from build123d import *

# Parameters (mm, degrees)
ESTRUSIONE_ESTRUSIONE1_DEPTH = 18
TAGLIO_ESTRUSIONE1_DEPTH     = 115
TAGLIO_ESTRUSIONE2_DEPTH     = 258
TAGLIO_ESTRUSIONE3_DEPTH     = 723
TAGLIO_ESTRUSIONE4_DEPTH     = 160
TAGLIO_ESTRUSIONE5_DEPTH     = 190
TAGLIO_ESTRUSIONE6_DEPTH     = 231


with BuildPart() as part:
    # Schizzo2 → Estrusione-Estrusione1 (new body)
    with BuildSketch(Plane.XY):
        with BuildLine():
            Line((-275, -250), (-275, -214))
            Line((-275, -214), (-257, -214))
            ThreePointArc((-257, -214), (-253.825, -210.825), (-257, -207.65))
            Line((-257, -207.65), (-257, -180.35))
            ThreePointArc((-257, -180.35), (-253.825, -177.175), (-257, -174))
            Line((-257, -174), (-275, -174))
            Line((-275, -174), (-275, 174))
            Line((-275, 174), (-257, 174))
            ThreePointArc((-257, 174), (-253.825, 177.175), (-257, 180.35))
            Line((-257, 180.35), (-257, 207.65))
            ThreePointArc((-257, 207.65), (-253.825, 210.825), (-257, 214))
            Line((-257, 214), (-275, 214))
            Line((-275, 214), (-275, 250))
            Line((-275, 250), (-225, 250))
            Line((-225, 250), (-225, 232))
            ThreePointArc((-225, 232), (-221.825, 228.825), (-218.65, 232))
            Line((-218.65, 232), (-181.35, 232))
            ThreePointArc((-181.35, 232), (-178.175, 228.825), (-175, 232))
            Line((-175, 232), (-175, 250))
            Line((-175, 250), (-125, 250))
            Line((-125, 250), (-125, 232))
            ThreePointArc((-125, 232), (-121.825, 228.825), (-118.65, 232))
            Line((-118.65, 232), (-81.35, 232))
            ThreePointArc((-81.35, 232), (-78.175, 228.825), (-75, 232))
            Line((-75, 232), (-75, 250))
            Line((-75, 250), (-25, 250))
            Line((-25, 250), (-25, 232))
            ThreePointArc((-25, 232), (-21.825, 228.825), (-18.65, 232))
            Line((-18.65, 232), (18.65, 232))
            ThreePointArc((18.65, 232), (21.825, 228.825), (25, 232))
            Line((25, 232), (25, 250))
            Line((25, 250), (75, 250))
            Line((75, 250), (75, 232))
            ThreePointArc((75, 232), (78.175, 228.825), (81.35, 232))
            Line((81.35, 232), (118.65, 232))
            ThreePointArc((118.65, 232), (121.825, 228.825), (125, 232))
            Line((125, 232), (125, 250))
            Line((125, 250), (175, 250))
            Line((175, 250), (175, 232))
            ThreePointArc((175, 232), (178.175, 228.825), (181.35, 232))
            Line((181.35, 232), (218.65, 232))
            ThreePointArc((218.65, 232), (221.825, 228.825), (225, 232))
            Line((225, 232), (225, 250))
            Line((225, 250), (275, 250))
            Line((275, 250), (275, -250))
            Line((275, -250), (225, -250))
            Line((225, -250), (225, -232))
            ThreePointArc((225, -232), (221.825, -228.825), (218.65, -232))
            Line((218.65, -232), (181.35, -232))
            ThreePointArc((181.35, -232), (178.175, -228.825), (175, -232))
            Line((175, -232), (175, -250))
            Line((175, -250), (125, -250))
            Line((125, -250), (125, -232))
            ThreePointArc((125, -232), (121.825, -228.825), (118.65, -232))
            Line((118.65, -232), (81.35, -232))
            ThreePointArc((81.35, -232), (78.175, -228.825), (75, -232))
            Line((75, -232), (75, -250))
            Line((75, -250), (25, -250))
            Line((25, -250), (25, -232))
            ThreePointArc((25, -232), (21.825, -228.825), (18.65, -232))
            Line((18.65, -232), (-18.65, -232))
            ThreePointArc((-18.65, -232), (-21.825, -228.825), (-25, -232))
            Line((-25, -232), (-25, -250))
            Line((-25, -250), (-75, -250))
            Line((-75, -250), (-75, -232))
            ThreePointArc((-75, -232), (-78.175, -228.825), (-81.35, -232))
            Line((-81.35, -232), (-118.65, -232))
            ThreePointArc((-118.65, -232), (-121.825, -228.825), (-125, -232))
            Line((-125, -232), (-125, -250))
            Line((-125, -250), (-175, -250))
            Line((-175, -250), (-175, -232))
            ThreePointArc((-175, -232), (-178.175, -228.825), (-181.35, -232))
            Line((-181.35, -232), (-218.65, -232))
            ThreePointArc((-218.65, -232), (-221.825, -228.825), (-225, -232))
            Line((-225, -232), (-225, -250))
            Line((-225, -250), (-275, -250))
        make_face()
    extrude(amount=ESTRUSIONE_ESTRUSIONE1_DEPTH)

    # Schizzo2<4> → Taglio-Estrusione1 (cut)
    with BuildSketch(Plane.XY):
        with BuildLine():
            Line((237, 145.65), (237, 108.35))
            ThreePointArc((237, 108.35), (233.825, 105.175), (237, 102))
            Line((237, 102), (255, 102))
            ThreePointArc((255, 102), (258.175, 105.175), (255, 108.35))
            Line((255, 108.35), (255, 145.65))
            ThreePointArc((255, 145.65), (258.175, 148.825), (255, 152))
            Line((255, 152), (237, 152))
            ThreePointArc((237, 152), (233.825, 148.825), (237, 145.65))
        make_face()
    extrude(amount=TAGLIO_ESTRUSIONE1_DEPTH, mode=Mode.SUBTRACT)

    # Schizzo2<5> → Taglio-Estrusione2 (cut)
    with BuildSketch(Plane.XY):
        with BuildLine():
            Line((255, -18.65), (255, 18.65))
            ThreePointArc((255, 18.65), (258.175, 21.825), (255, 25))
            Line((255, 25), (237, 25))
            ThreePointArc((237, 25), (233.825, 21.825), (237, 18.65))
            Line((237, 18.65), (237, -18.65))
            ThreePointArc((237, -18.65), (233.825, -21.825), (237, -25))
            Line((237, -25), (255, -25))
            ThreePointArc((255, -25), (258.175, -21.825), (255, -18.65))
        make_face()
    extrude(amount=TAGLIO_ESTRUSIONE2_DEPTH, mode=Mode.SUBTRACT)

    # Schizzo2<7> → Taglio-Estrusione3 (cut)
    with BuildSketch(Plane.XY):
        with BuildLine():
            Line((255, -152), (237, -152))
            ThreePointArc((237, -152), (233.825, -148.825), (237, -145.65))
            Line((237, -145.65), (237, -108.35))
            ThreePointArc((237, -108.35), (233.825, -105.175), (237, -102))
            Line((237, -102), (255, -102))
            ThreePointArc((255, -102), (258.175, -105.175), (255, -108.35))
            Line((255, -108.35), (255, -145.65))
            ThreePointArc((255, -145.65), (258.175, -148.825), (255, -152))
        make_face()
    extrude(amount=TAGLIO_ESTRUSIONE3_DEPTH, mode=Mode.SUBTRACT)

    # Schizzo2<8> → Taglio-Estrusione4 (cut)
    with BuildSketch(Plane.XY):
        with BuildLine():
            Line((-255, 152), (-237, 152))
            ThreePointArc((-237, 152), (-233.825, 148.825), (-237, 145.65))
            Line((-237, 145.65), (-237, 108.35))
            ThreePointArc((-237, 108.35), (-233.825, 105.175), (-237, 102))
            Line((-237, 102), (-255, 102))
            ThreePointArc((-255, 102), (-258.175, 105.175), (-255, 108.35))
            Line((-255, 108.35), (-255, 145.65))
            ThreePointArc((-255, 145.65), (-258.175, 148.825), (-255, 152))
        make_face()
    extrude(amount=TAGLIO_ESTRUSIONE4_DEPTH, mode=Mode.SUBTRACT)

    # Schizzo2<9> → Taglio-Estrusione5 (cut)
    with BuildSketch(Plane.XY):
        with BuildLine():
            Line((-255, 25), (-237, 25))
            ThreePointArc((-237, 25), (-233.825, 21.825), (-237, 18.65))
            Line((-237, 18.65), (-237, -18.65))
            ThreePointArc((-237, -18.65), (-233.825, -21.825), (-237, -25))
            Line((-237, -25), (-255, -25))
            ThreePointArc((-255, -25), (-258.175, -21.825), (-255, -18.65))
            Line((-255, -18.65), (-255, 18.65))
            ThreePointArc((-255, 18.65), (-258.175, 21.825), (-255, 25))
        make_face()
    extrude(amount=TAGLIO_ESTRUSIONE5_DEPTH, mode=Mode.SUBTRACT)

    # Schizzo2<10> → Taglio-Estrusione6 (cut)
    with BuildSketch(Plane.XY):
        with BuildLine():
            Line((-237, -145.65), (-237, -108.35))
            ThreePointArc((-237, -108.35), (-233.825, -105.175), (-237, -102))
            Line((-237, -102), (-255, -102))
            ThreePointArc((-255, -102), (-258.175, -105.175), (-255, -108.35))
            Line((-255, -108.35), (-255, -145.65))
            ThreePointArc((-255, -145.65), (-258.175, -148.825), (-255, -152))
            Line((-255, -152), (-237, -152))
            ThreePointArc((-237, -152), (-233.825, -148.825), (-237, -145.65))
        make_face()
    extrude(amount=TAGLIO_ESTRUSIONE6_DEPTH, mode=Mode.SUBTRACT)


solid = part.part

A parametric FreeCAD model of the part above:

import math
import FreeCAD as App
import Part
import Sketcher
from FreeCAD import Vector
Q = App.Units.Quantity

doc = App.newDocument("Part")
body = doc.addObject("PartDesign::Body", "Body")

sketch1 = body.newObject("Sketcher::SketchObject", "Sketch")
sketch1.AttachmentSupport = (doc.getObject("XY_Plane"), [""])
sketch1.MapMode = "FlatFace"
sketch1.addGeometry(Part.LineSegment(Vector(-275, -214, 0), Vector(-275, -250, 0)), False)
sketch1.addGeometry(Part.LineSegment(Vector(-275, -250, 0), Vector(-225, -250, 0)), False)
sketch1.addGeometry(Part.LineSegment(Vector(-225, -250, 0), Vector(-225, -232, 0)), False)
sketch1.addGeometry(Part.ArcOfCircle(Part.Circle(Vector(-221.825, -232, 0), Vector(0, 0, 1), 3.175), math.radians(0), math.radians(180)), False)
sketch1.addGeometry(Part.LineSegment(Vector(-218.65, -232, 0), Vector(-181.35, -232, 0)), False)
sketch1.addGeometry(Part.ArcOfCircle(Part.Circle(Vector(-178.175, -232, 0), Vector(0, 0, 1), 3.175), math.radians(0), math.radians(180)), False)
sketch1.addGeometry(Part.LineSegment(Vector(-175, -232, 0), Vector(-175, -250, 0)), False)
sketch1.addGeometry(Part.LineSegment(Vector(-175, -250, 0), Vector(-125, -250, 0)), False)
sketch1.addGeometry(Part.LineSegment(Vector(-125, -250, 0), Vector(-125, -232, 0)), False)
sketch1.addGeometry(Part.ArcOfCircle(Part.Circle(Vector(-121.825, -232, 0), Vector(0, 0, 1), 3.175), math.radians(0), math.radians(180)), False)
sketch1.addGeometry(Part.LineSegment(Vector(-118.65, -232, 0), Vector(-81.35, -232, 0)), False)
sketch1.addGeometry(Part.ArcOfCircle(Part.Circle(Vector(-78.175, -232, 0), Vector(0, 0, 1), 3.175), math.radians(0), math.radians(180)), False)
sketch1.addGeometry(Part.LineSegment(Vector(-75, -232, 0), Vector(-75, -250, 0)), False)
sketch1.addGeometry(Part.LineSegment(Vector(-75, -250, 0), Vector(-25, -250, 0)), False)
sketch1.addGeometry(Part.LineSegment(Vector(-25, -250, 0), Vector(-25, -232, 0)), False)
sketch1.addGeometry(Part.ArcOfCircle(Part.Circle(Vector(-21.825, -232, 0), Vector(0, 0, 1), 3.175), math.radians(0), math.radians(180)), False)
sketch1.addGeometry(Part.LineSegment(Vector(-18.65, -232, 0), Vector(18.65, -232, 0)), False)
sketch1.addGeometry(Part.ArcOfCircle(Part.Circle(Vector(21.825, -232, 0), Vector(0, 0, 1), 3.175), math.radians(0), math.radians(180)), False)
sketch1.addGeometry(Part.LineSegment(Vector(25, -232, 0), Vector(25, -250, 0)), False)
sketch1.addGeometry(Part.LineSegment(Vector(25, -250, 0), Vector(75, -250, 0)), False)
sketch1.addGeometry(Part.LineSegment(Vector(75, -250, 0), Vector(75, -232, 0)), False)
sketch1.addGeometry(Part.ArcOfCircle(Part.Circle(Vector(78.175, -232, 0), Vector(0, 0, 1), 3.175), math.radians(0), math.radians(180)), False)
sketch1.addGeometry(Part.LineSegment(Vector(81.35, -232, 0), Vector(118.65, -232, 0)), False)
sketch1.addGeometry(Part.ArcOfCircle(Part.Circle(Vector(121.825, -232, 0), Vector(0, 0, 1), 3.175), math.radians(0), math.radians(180)), False)
sketch1.addGeometry(Part.LineSegment(Vector(125, -232, 0), Vector(125, -250, 0)), False)
sketch1.addGeometry(Part.LineSegment(Vector(125, -250, 0), Vector(175, -250, 0)), False)
sketch1.addGeometry(Part.LineSegment(Vector(175, -250, 0), Vector(175, -232, 0)), False)
sketch1.addGeometry(Part.ArcOfCircle(Part.Circle(Vector(178.175, -232, 0), Vector(0, 0, 1), 3.175), math.radians(0), math.radians(180)), False)
sketch1.addGeometry(Part.LineSegment(Vector(181.35, -232, 0), Vector(218.65, -232, 0)), False)
sketch1.addGeometry(Part.ArcOfCircle(Part.Circle(Vector(221.825, -232, 0), Vector(0, 0, 1), 3.175), math.radians(0), math.radians(180)), False)
sketch1.addGeometry(Part.LineSegment(Vector(225, -232, 0), Vector(225, -250, 0)), False)
sketch1.addGeometry(Part.LineSegment(Vector(225, -250, 0), Vector(275, -250, 0)), False)
sketch1.addGeometry(Part.LineSegment(Vector(275, -250, 0), Vector(275, 250, 0)), False)
sketch1.addGeometry(Part.LineSegment(Vector(275, 250, 0), Vector(225, 250, 0)), False)
sketch1.addGeometry(Part.LineSegment(Vector(225, 250, 0), Vector(225, 232, 0)), False)
sketch1.addGeometry(Part.ArcOfCircle(Part.Circle(Vector(221.825, 232, 0), Vector(0, 0, 1), 3.175), math.radians(180), math.radians(360)), False)
sketch1.addGeometry(Part.LineSegment(Vector(218.65, 232, 0), Vector(181.35, 232, 0)), False)
sketch1.addGeometry(Part.ArcOfCircle(Part.Circle(Vector(178.175, 232, 0), Vector(0, 0, 1), 3.175), math.radians(180), math.radians(360)), False)
sketch1.addGeometry(Part.LineSegment(Vector(175, 232, 0), Vector(175, 250, 0)), False)
sketch1.addGeometry(Part.LineSegment(Vector(175, 250, 0), Vector(125, 250, 0)), False)
sketch1.addGeometry(Part.LineSegment(Vector(125, 250, 0), Vector(125, 232, 0)), False)
sketch1.addGeometry(Part.ArcOfCircle(Part.Circle(Vector(121.825, 232, 0), Vector(0, 0, 1), 3.175), math.radians(180), math.radians(360)), False)
sketch1.addGeometry(Part.LineSegment(Vector(118.65, 232, 0), Vector(81.35, 232, 0)), False)
sketch1.addGeometry(Part.ArcOfCircle(Part.Circle(Vector(78.175, 232, 0), Vector(0, 0, 1), 3.175), math.radians(180), math.radians(360)), False)
sketch1.addGeometry(Part.LineSegment(Vector(75, 232, 0), Vector(75, 250, 0)), False)
sketch1.addGeometry(Part.LineSegment(Vector(75, 250, 0), Vector(25, 250, 0)), False)
sketch1.addGeometry(Part.LineSegment(Vector(25, 250, 0), Vector(25, 232, 0)), False)
sketch1.addGeometry(Part.ArcOfCircle(Part.Circle(Vector(21.825, 232, 0), Vector(0, 0, 1), 3.175), math.radians(180), math.radians(360)), False)
sketch1.addGeometry(Part.LineSegment(Vector(18.65, 232, 0), Vector(-18.65, 232, 0)), False)
sketch1.addGeometry(Part.ArcOfCircle(Part.Circle(Vector(-21.825, 232, 0), Vector(0, 0, 1), 3.175), math.radians(180), math.radians(360)), False)
sketch1.addGeometry(Part.LineSegment(Vector(-25, 232, 0), Vector(-25, 250, 0)), False)
sketch1.addGeometry(Part.LineSegment(Vector(-25, 250, 0), Vector(-75, 250, 0)), False)
sketch1.addGeometry(Part.LineSegment(Vector(-75, 250, 0), Vector(-75, 232, 0)), False)
sketch1.addGeometry(Part.ArcOfCircle(Part.Circle(Vector(-78.175, 232, 0), Vector(0, 0, 1), 3.175), math.radians(180), math.radians(360)), False)
sketch1.addGeometry(Part.LineSegment(Vector(-81.35, 232, 0), Vector(-118.65, 232, 0)), False)
sketch1.addGeometry(Part.ArcOfCircle(Part.Circle(Vector(-121.825, 232, 0), Vector(0, 0, 1), 3.175), math.radians(180), math.radians(360)), False)
sketch1.addGeometry(Part.LineSegment(Vector(-125, 232, 0), Vector(-125, 250, 0)), False)
sketch1.addGeometry(Part.LineSegment(Vector(-125, 250, 0), Vector(-175, 250, 0)), False)
sketch1.addGeometry(Part.LineSegment(Vector(-175, 250, 0), Vector(-175, 232, 0)), False)
sketch1.addGeometry(Part.ArcOfCircle(Part.Circle(Vector(-178.175, 232, 0), Vector(0, 0, 1), 3.175), math.radians(180), math.radians(360)), False)
sketch1.addGeometry(Part.LineSegment(Vector(-181.35, 232, 0), Vector(-218.65, 232, 0)), False)
sketch1.addGeometry(Part.ArcOfCircle(Part.Circle(Vector(-221.825, 232, 0), Vector(0, 0, 1), 3.175), math.radians(180), math.radians(360)), False)
sketch1.addGeometry(Part.LineSegment(Vector(-225, 232, 0), Vector(-225, 250, 0)), False)
sketch1.addGeometry(Part.LineSegment(Vector(-225, 250, 0), Vector(-275, 250, 0)), False)
sketch1.addGeometry(Part.LineSegment(Vector(-275, 250, 0), Vector(-275, 214, 0)), False)
sketch1.addGeometry(Part.LineSegment(Vector(-275, 214, 0), Vector(-257, 214, 0)), False)
sketch1.addGeometry(Part.ArcOfCircle(Part.Circle(Vector(-257, 210.825, 0), Vector(0, 0, 1), 3.175), math.radians(-90), math.radians(90)), False)
sketch1.addGeometry(Part.LineSegment(Vector(-257, 207.65, 0), Vector(-257, 180.35, 0)), False)
sketch1.addGeometry(Part.ArcOfCircle(Part.Circle(Vector(-257, 177.175, 0), Vector(0, 0, 1), 3.175), math.radians(-90), math.radians(90)), False)
sketch1.addGeometry(Part.LineSegment(Vector(-257, 174, 0), Vector(-275, 174, 0)), False)
sketch1.addGeometry(Part.LineSegment(Vector(-275, 174, 0), Vector(-275, -174, 0)), False)
sketch1.addGeometry(Part.LineSegment(Vector(-275, -174, 0), Vector(-257, -174, 0)), False)
sketch1.addGeometry(Part.ArcOfCircle(Part.Circle(Vector(-257, -177.175, 0), Vector(0, 0, 1), 3.175), math.radians(-90), math.radians(90)), False)
sketch1.addGeometry(Part.LineSegment(Vector(-257, -180.35, 0), Vector(-257, -207.65, 0)), False)
sketch1.addGeometry(Part.ArcOfCircle(Part.Circle(Vector(-257, -210.825, 0), Vector(0, 0, 1), 3.175), math.radians(-90), math.radians(90)), False)
sketch1.addGeometry(Part.LineSegment(Vector(-257, -214, 0), Vector(-275, -214, 0)), False)
sketch1.addConstraint(Sketcher.Constraint("Coincident", 0, 2, 1, 1))
sketch1.addConstraint(Sketcher.Constraint("Coincident", 1, 2, 2, 1))
sketch1.addConstraint(Sketcher.Constraint("Tangent", 2, 2, 3, 2))
sketch1.addConstraint(Sketcher.Constraint("Coincident", 3, 1, 4, 1))
sketch1.addConstraint(Sketcher.Constraint("Coincident", 4, 2, 5, 2))
sketch1.addConstraint(Sketcher.Constraint("Tangent", 5, 1, 6, 1))
sketch1.addConstraint(Sketcher.Constraint("Coincident", 6, 2, 7, 1))
sketch1.addConstraint(Sketcher.Constraint("Coincident", 7, 2, 8, 1))
sketch1.addConstraint(Sketcher.Constraint("Tangent", 8, 2, 9, 2))
sketch1.addConstraint(Sketcher.Constraint("Coincident", 9, 1, 10, 1))
sketch1.addConstraint(Sketcher.Constraint("Coincident", 10, 2, 11, 2))
sketch1.addConstraint(Sketcher.Constraint("Tangent", 11, 1, 12, 1))
sketch1.addConstraint(Sketcher.Constraint("Coincident", 12, 2, 13, 1))
sketch1.addConstraint(Sketcher.Constraint("Coincident", 13, 2, 14, 1))
sketch1.addConstraint(Sketcher.Constraint("Tangent", 14, 2, 15, 2))
sketch1.addConstraint(Sketcher.Constraint("Coincident", 15, 1, 16, 1))
sketch1.addConstraint(Sketcher.Constraint("Coincident", 16, 2, 17, 2))
sketch1.addConstraint(Sketcher.Constraint("Tangent", 17, 1, 18, 1))
sketch1.addConstraint(Sketcher.Constraint("Coincident", 18, 2, 19, 1))
sketch1.addConstraint(Sketcher.Constraint("Coincident", 19, 2, 20, 1))
sketch1.addConstraint(Sketcher.Constraint("Tangent", 20, 2, 21, 2))
sketch1.addConstraint(Sketcher.Constraint("Coincident", 21, 1, 22, 1))
sketch1.addConstraint(Sketcher.Constraint("Coincident", 22, 2, 23, 2))
sketch1.addConstraint(Sketcher.Constraint("Tangent", 23, 1, 24, 1))
sketch1.addConstraint(Sketcher.Constraint("Coincident", 24, 2, 25, 1))
sketch1.addConstraint(Sketcher.Constraint("Coincident", 25, 2, 26, 1))
sketch1.addConstraint(Sketcher.Constraint("Tangent", 26, 2, 27, 2))
sketch1.addConstraint(Sketcher.Constraint("Coincident", 27, 1, 28, 1))
sketch1.addConstraint(Sketcher.Constraint("Coincident", 28, 2, 29, 2))
sketch1.addConstraint(Sketcher.Constraint("Tangent", 29, 1, 30, 1))
sketch1.addConstraint(Sketcher.Constraint("Coincident", 30, 2, 31, 1))
sketch1.addConstraint(Sketcher.Constraint("Coincident", 31, 2, 32, 1))
sketch1.addConstraint(Sketcher.Constraint("Coincident", 32, 2, 33, 1))
sketch1.addConstraint(Sketcher.Constraint("Coincident", 33, 2, 34, 1))
sketch1.addConstraint(Sketcher.Constraint("Tangent", 34, 2, 35, 2))
sketch1.addConstraint(Sketcher.Constraint("Coincident", 35, 1, 36, 1))
sketch1.addConstraint(Sketcher.Constraint("Coincident", 36, 2, 37, 2))
sketch1.addConstraint(Sketcher.Constraint("Tangent", 37, 1, 38, 1))
sketch1.addConstraint(Sketcher.Constraint("Coincident", 38, 2, 39, 1))
sketch1.addConstraint(Sketcher.Constraint("Coincident", 39, 2, 40, 1))
sketch1.addConstraint(Sketcher.Constraint("Tangent", 40, 2, 41, 2))
sketch1.addConstraint(Sketcher.Constraint("Coincident", 41, 1, 42, 1))
sketch1.addConstraint(Sketcher.Constraint("Coincident", 42, 2, 43, 2))
sketch1.addConstraint(Sketcher.Constraint("Tangent", 43, 1, 44, 1))
sketch1.addConstraint(Sketcher.Constraint("Coincident", 44, 2, 45, 1))
sketch1.addConstraint(Sketcher.Constraint("Coincident", 45, 2, 46, 1))
sketch1.addConstraint(Sketcher.Constraint("Tangent", 46, 2, 47, 2))
sketch1.addConstraint(Sketcher.Constraint("Coincident", 47, 1, 48, 1))
sketch1.addConstraint(Sketcher.Constraint("Coincident", 48, 2, 49, 2))
sketch1.addConstraint(Sketcher.Constraint("Tangent", 49, 1, 50, 1))
sketch1.addConstraint(Sketcher.Constraint("Coincident", 50, 2, 51, 1))
sketch1.addConstraint(Sketcher.Constraint("Coincident", 51, 2, 52, 1))
sketch1.addConstraint(Sketcher.Constraint("Tangent", 52, 2, 53, 2))
sketch1.addConstraint(Sketcher.Constraint("Coincident", 53, 1, 54, 1))
sketch1.addConstraint(Sketcher.Constraint("Coincident", 54, 2, 55, 2))
sketch1.addConstraint(Sketcher.Constraint("Tangent", 55, 1, 56, 1))
sketch1.addConstraint(Sketcher.Constraint("Coincident", 56, 2, 57, 1))
sketch1.addConstraint(Sketcher.Constraint("Coincident", 57, 2, 58, 1))
sketch1.addConstraint(Sketcher.Constraint("Tangent", 58, 2, 59, 2))
sketch1.addConstraint(Sketcher.Constraint("Coincident", 59, 1, 60, 1))
sketch1.addConstraint(Sketcher.Constraint("Coincident", 60, 2, 61, 2))
sketch1.addConstraint(Sketcher.Constraint("Tangent", 61, 1, 62, 1))
sketch1.addConstraint(Sketcher.Constraint("Coincident", 62, 2, 63, 1))
sketch1.addConstraint(Sketcher.Constraint("Coincident", 63, 2, 64, 1))
sketch1.addConstraint(Sketcher.Constraint("Coincident", 64, 2, 65, 1))
sketch1.addConstraint(Sketcher.Constraint("Tangent", 65, 2, 66, 2))
sketch1.addConstraint(Sketcher.Constraint("Coincident", 66, 1, 67, 1))
sketch1.addConstraint(Sketcher.Constraint("Coincident", 67, 2, 68, 2))
sketch1.addConstraint(Sketcher.Constraint("Tangent", 68, 1, 69, 1))
sketch1.addConstraint(Sketcher.Constraint("Coincident", 69, 2, 70, 1))
sketch1.addConstraint(Sketcher.Constraint("Coincident", 70, 2, 71, 1))
sketch1.addConstraint(Sketcher.Constraint("Tangent", 71, 2, 72, 2))
sketch1.addConstraint(Sketcher.Constraint("Coincident", 72, 1, 73, 1))
sketch1.addConstraint(Sketcher.Constraint("Coincident", 73, 2, 74, 2))
sketch1.addConstraint(Sketcher.Constraint("Tangent", 74, 1, 75, 1))
sketch1.addConstraint(Sketcher.Constraint("Coincident", 75, 2, 0, 1))
sketch1.addConstraint(Sketcher.Constraint("Vertical", 0))
sketch1.addConstraint(Sketcher.Constraint("Horizontal", 1))
sketch1.addConstraint(Sketcher.Constraint("Vertical", 2))
sketch1.addConstraint(Sketcher.Constraint("Horizontal", 4))
sketch1.addConstraint(Sketcher.Constraint("Vertical", 6))
sketch1.addConstraint(Sketcher.Constraint("Horizontal", 7))
sketch1.addConstraint(Sketcher.Constraint("Vertical", 8))
sketch1.addConstraint(Sketcher.Constraint("Horizontal", 10))
sketch1.addConstraint(Sketcher.Constraint("Vertical", 12))
sketch1.addConstraint(Sketcher.Constraint("Horizontal", 13))
sketch1.addConstraint(Sketcher.Constraint("Vertical", 14))
sketch1.addConstraint(Sketcher.Constraint("Horizontal", 16))
sketch1.addConstraint(Sketcher.Constraint("Vertical", 18))
sketch1.addConstraint(Sketcher.Constraint("Horizontal", 19))
sketch1.addConstraint(Sketcher.Constraint("Vertical", 20))
sketch1.addConstraint(Sketcher.Constraint("Horizontal", 22))
sketch1.addConstraint(Sketcher.Constraint("Vertical", 24))
sketch1.addConstraint(Sketcher.Constraint("Horizontal", 25))
sketch1.addConstraint(Sketcher.Constraint("Vertical", 26))
sketch1.addConstraint(Sketcher.Constraint("Horizontal", 28))
sketch1.addConstraint(Sketcher.Constraint("Vertical", 30))
sketch1.addConstraint(Sketcher.Constraint("Horizontal", 31))
sketch1.addConstraint(Sketcher.Constraint("Vertical", 32))
sketch1.addConstraint(Sketcher.Constraint("Horizontal", 33))
sketch1.addConstraint(Sketcher.Constraint("Vertical", 34))
sketch1.addConstraint(Sketcher.Constraint("Horizontal", 36))
sketch1.addConstraint(Sketcher.Constraint("Vertical", 38))
sketch1.addConstraint(Sketcher.Constraint("Horizontal", 39))
sketch1.addConstraint(Sketcher.Constraint("Vertical", 40))
sketch1.addConstraint(Sketcher.Constraint("Horizontal", 42))
sketch1.addConstraint(Sketcher.Constraint("Vertical", 44))
sketch1.addConstraint(Sketcher.Constraint("Horizontal", 45))
sketch1.addConstraint(Sketcher.Constraint("Vertical", 46))
sketch1.addConstraint(Sketcher.Constraint("Horizontal", 48))
sketch1.addConstraint(Sketcher.Constraint("Vertical", 50))
sketch1.addConstraint(Sketcher.Constraint("Horizontal", 51))
sketch1.addConstraint(Sketcher.Constraint("Vertical", 52))
sketch1.addConstraint(Sketcher.Constraint("Horizontal", 54))
sketch1.addConstraint(Sketcher.Constraint("Vertical", 56))
sketch1.addConstraint(Sketcher.Constraint("Horizontal", 57))
sketch1.addConstraint(Sketcher.Constraint("Vertical", 58))
sketch1.addConstraint(Sketcher.Constraint("Horizontal", 60))
sketch1.addConstraint(Sketcher.Constraint("Vertical", 62))
sketch1.addConstraint(Sketcher.Constraint("Horizontal", 63))
sketch1.addConstraint(Sketcher.Constraint("Vertical", 64))
sketch1.addConstraint(Sketcher.Constraint("Horizontal", 65))
sketch1.addConstraint(Sketcher.Constraint("Vertical", 67))
sketch1.addConstraint(Sketcher.Constraint("Horizontal", 69))
sketch1.addConstraint(Sketcher.Constraint("Vertical", 70))
sketch1.addConstraint(Sketcher.Constraint("Horizontal", 71))
sketch1.addConstraint(Sketcher.Constraint("Vertical", 73))
sketch1.addConstraint(Sketcher.Constraint("Horizontal", 75))
sketch1.addConstraint(Sketcher.Constraint("Equal", 3, 5))
sketch1.addConstraint(Sketcher.Constraint("Equal", 5, 9))
sketch1.addConstraint(Sketcher.Constraint("Equal", 9, 11))
sketch1.addConstraint(Sketcher.Constraint("Equal", 11, 15))
sketch1.addConstraint(Sketcher.Constraint("Equal", 15, 17))
sketch1.addConstraint(Sketcher.Constraint("Equal", 17, 21))
sketch1.addConstraint(Sketcher.Constraint("Equal", 21, 23))
sketch1.addConstraint(Sketcher.Constraint("Equal", 23, 27))
sketch1.addConstraint(Sketcher.Constraint("Equal", 27, 29))
sketch1.addConstraint(Sketcher.Constraint("Equal", 29, 35))
sketch1.addConstraint(Sketcher.Constraint("Equal", 35, 37))
sketch1.addConstraint(Sketcher.Constraint("Equal", 37, 41))
sketch1.addConstraint(Sketcher.Constraint("Equal", 41, 43))
sketch1.addConstraint(Sketcher.Constraint("Equal", 43, 47))
sketch1.addConstraint(Sketcher.Constraint("Equal", 47, 49))
sketch1.addConstraint(Sketcher.Constraint("Equal", 49, 53))
sketch1.addConstraint(Sketcher.Constraint("Equal", 53, 55))
sketch1.addConstraint(Sketcher.Constraint("Equal", 55, 59))
sketch1.addConstraint(Sketcher.Constraint("Equal", 59, 61))
sketch1.addConstraint(Sketcher.Constraint("Equal", 61, 66))
sketch1.addConstraint(Sketcher.Constraint("Equal", 66, 68))
sketch1.addConstraint(Sketcher.Constraint("Equal", 68, 72))
sketch1.addConstraint(Sketcher.Constraint("Equal", 72, 74))
sketch1.addConstraint(Sketcher.Constraint("Symmetric", 3, 3, 35, 3, -1, 1))
sketch1.addConstraint(Sketcher.Constraint("Symmetric", 5, 3, 37, 3, -1, 1))
sketch1.addConstraint(Sketcher.Constraint("Symmetric", 9, 3, 41, 3, -1, 1))
sketch1.addConstraint(Sketcher.Constraint("Symmetric", 11, 3, 43, 3, -1, 1))
sketch1.addConstraint(Sketcher.Constraint("Symmetric", 15, 3, 47, 3, -1, 1))
sketch1.addConstraint(Sketcher.Constraint("Symmetric", 17, 3, 49, 3, -1, 1))
sketch1.addConstraint(Sketcher.Constraint("Symmetric", 21, 3, 53, 3, -1, 1))
sketch1.addConstraint(Sketcher.Constraint("Symmetric", 23, 3, 55, 3, -1, 1))
sketch1.addConstraint(Sketcher.Constraint("Symmetric", 27, 3, 59, 3, -1, 1))
sketch1.addConstraint(Sketcher.Constraint("Symmetric", 29, 3, 61, 3, -1, 1))
sketch1.addConstraint(Sketcher.Constraint("Symmetric", 0, 2, 32, 2, -1, 1))
sketch1.addConstraint(Sketcher.Constraint("Symmetric", 31, 2, 63, 2, -1, 1))
sketch1.addConstraint(Sketcher.Constraint("Symmetric", 15, 3, 17, 3, -2))
sketch1.addConstraint(Sketcher.Constraint("Symmetric", 11, 3, 21, 3, -2))
sketch1.addConstraint(Sketcher.Constraint("Symmetric", 9, 3, 23, 3, -2))
sketch1.addConstraint(Sketcher.Constraint("Symmetric", 5, 3, 27, 3, -2))
sketch1.addConstraint(Sketcher.Constraint("Symmetric", 3, 3, 29, 3, -2))
sketch1.addConstraint(Sketcher.Constraint("Symmetric", 68, 3, 72, 3, -1))
sketch1.addConstraint(Sketcher.Constraint("Symmetric", 66, 3, 74, 3, -1))
sketch1.addConstraint(Sketcher.Constraint("Horizontal", 3, 3, 5, 3))
sketch1.addConstraint(Sketcher.Constraint("Horizontal", 5, 3, 9, 3))
sketch1.addConstraint(Sketcher.Constraint("Horizontal", 9, 3, 11, 3))
sketch1.addConstraint(Sketcher.Constraint("Horizontal", 11, 3, 15, 3))
sketch1.addConstraint(Sketcher.Constraint("Horizontal", 2, 2, 3, 1))
sketch1.addConstraint(Sketcher.Constraint("Horizontal", 1, 2, 6, 2))
sketch1.addConstraint(Sketcher.Constraint("Horizontal", 8, 2, 9, 1))
sketch1.addConstraint(Sketcher.Constraint("Horizontal", 7, 2, 12, 2))
sketch1.addConstraint(Sketcher.Constraint("Horizontal", 14, 2, 15, 1))
sketch1.addConstraint(Sketcher.Constraint("Horizontal", 13, 2, 18, 2))
sketch1.addConstraint(Sketcher.Constraint("Horizontal", 20, 2, 21, 1))
sketch1.addConstraint(Sketcher.Constraint("Horizontal", 19, 2, 24, 2))
sketch1.addConstraint(Sketcher.Constraint("Horizontal", 26, 2, 27, 1))
sketch1.addConstraint(Sketcher.Constraint("Horizontal", 25, 2, 30, 2))
sketch1.addConstraint(Sketcher.Constraint("Horizontal", 34, 2, 35, 1))
sketch1.addConstraint(Sketcher.Constraint("Horizontal", 33, 2, 38, 2))
sketch1.addConstraint(Sketcher.Constraint("Horizontal", 40, 2, 41, 1))
sketch1.addConstraint(Sketcher.Constraint("Horizontal", 39, 2, 44, 2))
sketch1.addConstraint(Sketcher.Constraint("Horizontal", 46, 2, 47, 1))
sketch1.addConstraint(Sketcher.Constraint("Horizontal", 45, 2, 50, 2))
sketch1.addConstraint(Sketcher.Constraint("Horizontal", 52, 2, 53, 1))
sketch1.addConstraint(Sketcher.Constraint("Horizontal", 51, 2, 56, 2))
sketch1.addConstraint(Sketcher.Constraint("Horizontal", 58, 2, 59, 1))
sketch1.addConstraint(Sketcher.Constraint("Vertical", 66, 3, 68, 3))
sketch1.addConstraint(Sketcher.Constraint("Vertical", 65, 2, 66, 1))
sketch1.addConstraint(Sketcher.Constraint("Vertical", 64, 2, 69, 2))
sketch1.addConstraint(Sketcher.Constraint("Vertical", 71, 2, 72, 1))
sketch1.addConstraint(Sketcher.Constraint("Equal", 1, 7))
sketch1.addConstraint(Sketcher.Constraint("Equal", 4, 10))
sketch1.addConstraint(Sketcher.Constraint("Equal", 7, 13))
sketch1.addConstraint(Sketcher.Constraint("Equal", 10, 16))
sketch1.addConstraint(Sketcher.Constraint("Equal", 75, 2))
sketch1.addConstraint(Sketcher.Constraint("DistanceX", 1, 1, 1, 2, Q("50 mm")))
sketch1.addConstraint(Sketcher.Constraint("DistanceX", 65, 1, 65, 2, Q("18 mm")))
sketch1.addConstraint(Sketcher.Constraint("DistanceY", 0, 2, 0, 1, Q("36 mm")))
sketch1.addConstraint(Sketcher.Constraint("DistanceY", 32, 1, 32, 2, Q("500 mm")))
sketch1.addConstraint(Sketcher.Constraint("DistanceY", 70, 2, 70, 1, Q("348 mm")))
sketch1.addConstraint(Sketcher.Constraint("DistanceX", 4, 1, 4, 2, Q("37.3 mm")))
sketch1.addConstraint(Sketcher.Constraint("DistanceY", 67, 2, 67, 1, Q("27.3 mm")))
pad1 = body.newObject("PartDesign::Pad", "Pad")
pad1.Profile = sketch1
pad1.Length = 18

sketch2 = body.newObject("Sketcher::SketchObject", "Sketch001")
sketch2.AttachmentSupport = (doc.getObject("XY_Plane"), [""])
sketch2.MapMode = "FlatFace"
sketch2.addGeometry(Part.LineSegment(Vector(237, 145.65, 0), Vector(237, 108.35, 0)), False)
sketch2.addGeometry(Part.ArcOfCircle(Part.Circle(Vector(237, 105.175, 0), Vector(0, 0, 1), 3.175), math.radians(90), math.radians(270)), False)
sketch2.addGeometry(Part.LineSegment(Vector(237, 102, 0), Vector(255, 102, 0)), False)
sketch2.addGeometry(Part.ArcOfCircle(Part.Circle(Vector(255, 105.175, 0), Vector(0, 0, 1), 3.175), math.radians(-90), math.radians(90)), False)
sketch2.addGeometry(Part.LineSegment(Vector(255, 108.35, 0), Vector(255, 145.65, 0)), False)
sketch2.addGeometry(Part.ArcOfCircle(Part.Circle(Vector(255, 148.825, 0), Vector(0, 0, 1), 3.175), math.radians(-90), math.radians(90)), False)
sketch2.addGeometry(Part.LineSegment(Vector(255, 152, 0), Vector(237, 152, 0)), False)
sketch2.addGeometry(Part.ArcOfCircle(Part.Circle(Vector(237, 148.825, 0), Vector(0, 0, 1), 3.175), math.radians(90), math.radians(270)), False)
sketch2.addConstraint(Sketcher.Constraint("Coincident", 0, 2, 1, 1))
sketch2.addConstraint(Sketcher.Constraint("Tangent", 1, 2, 2, 1))
sketch2.addConstraint(Sketcher.Constraint("Tangent", 2, 2, 3, 1))
sketch2.addConstraint(Sketcher.Constraint("Coincident", 3, 2, 4, 1))
sketch2.addConstraint(Sketcher.Constraint("Coincident", 4, 2, 5, 1))
sketch2.addConstraint(Sketcher.Constraint("Tangent", 5, 2, 6, 1))
sketch2.addConstraint(Sketcher.Constraint("Tangent", 6, 2, 7, 1))
sketch2.addConstraint(Sketcher.Constraint("Coincident", 7, 2, 0, 1))
sketch2.addConstraint(Sketcher.Constraint("Vertical", 0))
sketch2.addConstraint(Sketcher.Constraint("Horizontal", 2))
sketch2.addConstraint(Sketcher.Constraint("Vertical", 4))
sketch2.addConstraint(Sketcher.Constraint("Horizontal", 6))
sketch2.addConstraint(Sketcher.Constraint("Equal", 1, 3))
sketch2.addConstraint(Sketcher.Constraint("Equal", 3, 5))
sketch2.addConstraint(Sketcher.Constraint("Equal", 5, 7))
sketch2.addConstraint(Sketcher.Constraint("Vertical", 3, 3, 5, 3))
sketch2.addConstraint(Sketcher.Constraint("Vertical", 1, 3, 7, 3))
sketch2.addConstraint(Sketcher.Constraint("Vertical", 7, 3, 0, 2))
sketch2.addConstraint(Sketcher.Constraint("Vertical", 2, 2, 3, 2))
sketch2.addConstraint(Sketcher.Constraint("DistanceX", 2, 1, 2, 2, Q("18 mm")))
sketch2.addConstraint(Sketcher.Constraint("DistanceY", 0, 2, 0, 1, Q("37.3 mm")))
sketch2.addConstraint(Sketcher.Constraint("DistanceX", -1, 1, 1, 3, Q("237 mm")))
sketch2.addConstraint(Sketcher.Constraint("DistanceY", -1, 1, 1, 2, Q("102 mm")))
sketch2.addConstraint(Sketcher.Constraint("DistanceY", -1, 1, 5, 2, Q("152 mm")))
pocket1 = body.newObject("PartDesign::Pocket", "Pocket")
pocket1.Profile = sketch2
pocket1.Length = 115
pocket1.Reversed = True

sketch3 = body.newObject("Sketcher::SketchObject", "Sketch002")
sketch3.AttachmentSupport = (doc.getObject("XY_Plane"), [""])
sketch3.MapMode = "FlatFace"
sketch3.addGeometry(Part.LineSegment(Vector(255, -18.65, 0), Vector(255, 18.65, 0)), False)
sketch3.addGeometry(Part.ArcOfCircle(Part.Circle(Vector(255, 21.825, 0), Vector(0, 0, 1), 3.175), math.radians(-90), math.radians(90)), False)
sketch3.addGeometry(Part.LineSegment(Vector(255, 25, 0), Vector(237, 25, 0)), False)
sketch3.addGeometry(Part.ArcOfCircle(Part.Circle(Vector(237, 21.825, 0), Vector(0, 0, 1), 3.175), math.radians(90), math.radians(270)), False)
sketch3.addGeometry(Part.LineSegment(Vector(237, 18.65, 0), Vector(237, -18.65, 0)), False)
sketch3.addGeometry(Part.ArcOfCircle(Part.Circle(Vector(237, -21.825, 0), Vector(0, 0, 1), 3.175), math.radians(90), math.radians(270)), False)
sketch3.addGeometry(Part.LineSegment(Vector(237, -25, 0), Vector(255, -25, 0)), False)
sketch3.addGeometry(Part.ArcOfCircle(Part.Circle(Vector(255, -21.825, 0), Vector(0, 0, 1), 3.175), math.radians(-90), math.radians(90)), False)
sketch3.addConstraint(Sketcher.Constraint("Coincident", 0, 2, 1, 1))
sketch3.addConstraint(Sketcher.Constraint("Tangent", 1, 2, 2, 1))
sketch3.addConstraint(Sketcher.Constraint("Tangent", 2, 2, 3, 1))
sketch3.addConstraint(Sketcher.Constraint("Coincident", 3, 2, 4, 1))
sketch3.addConstraint(Sketcher.Constraint("Coincident", 4, 2, 5, 1))
sketch3.addConstraint(Sketcher.Constraint("Tangent", 5, 2, 6, 1))
sketch3.addConstraint(Sketcher.Constraint("Tangent", 6, 2, 7, 1))
sketch3.addConstraint(Sketcher.Constraint("Coincident", 7, 2, 0, 1))
sketch3.addConstraint(Sketcher.Constraint("Vertical", 0))
sketch3.addConstraint(Sketcher.Constraint("Horizontal", 2))
sketch3.addConstraint(Sketcher.Constraint("Vertical", 4))
sketch3.addConstraint(Sketcher.Constraint("Horizontal", 6))
sketch3.addConstraint(Sketcher.Constraint("Equal", 1, 3))
sketch3.addConstraint(Sketcher.Constraint("Equal", 3, 5))
sketch3.addConstraint(Sketcher.Constraint("Equal", 5, 7))
sketch3.addConstraint(Sketcher.Constraint("Symmetric", 3, 3, 5, 3, -1))
sketch3.addConstraint(Sketcher.Constraint("Vertical", 1, 3, 7, 3))
sketch3.addConstraint(Sketcher.Constraint("Vertical", 7, 3, 0, 2))
sketch3.addConstraint(Sketcher.Constraint("Vertical", 2, 2, 3, 2))
sketch3.addConstraint(Sketcher.Constraint("DistanceX", 2, 2, 2, 1, Q("18 mm")))
sketch3.addConstraint(Sketcher.Constraint("DistanceY", 0, 1, 0, 2, Q("37.3 mm")))
sketch3.addConstraint(Sketcher.Constraint("DistanceX", -1, 1, 1, 3, Q("255 mm")))
sketch3.addConstraint(Sketcher.Constraint("DistanceY", -1, 1, 1, 2, Q("25 mm")))
pocket2 = body.newObject("PartDesign::Pocket", "Pocket001")
pocket2.Profile = sketch3
pocket2.Length = 258
pocket2.Reversed = True

sketch4 = body.newObject("Sketcher::SketchObject", "Sketch003")
sketch4.AttachmentSupport = (doc.getObject("XY_Plane"), [""])
sketch4.MapMode = "FlatFace"
sketch4.addGeometry(Part.LineSegment(Vector(237, -152, 0), Vector(255, -152, 0)), False)
sketch4.addGeometry(Part.ArcOfCircle(Part.Circle(Vector(255, -148.825, 0), Vector(0, 0, 1), 3.175), math.radians(-90), math.radians(90)), False)
sketch4.addGeometry(Part.LineSegment(Vector(255, -145.65, 0), Vector(255, -108.35, 0)), False)
sketch4.addGeometry(Part.ArcOfCircle(Part.Circle(Vector(255, -105.175, 0), Vector(0, 0, 1), 3.175), math.radians(-90), math.radians(90)), False)
sketch4.addGeometry(Part.LineSegment(Vector(255, -102, 0), Vector(237, -102, 0)), False)
sketch4.addGeometry(Part.ArcOfCircle(Part.Circle(Vector(237, -105.175, 0), Vector(0, 0, 1), 3.175), math.radians(90), math.radians(270)), False)
sketch4.addGeometry(Part.LineSegment(Vector(237, -108.35, 0), Vector(237, -145.65, 0)), False)
sketch4.addGeometry(Part.ArcOfCircle(Part.Circle(Vector(237, -148.825, 0), Vector(0, 0, 1), 3.175), math.radians(90), math.radians(270)), False)
sketch4.addConstraint(Sketcher.Constraint("Tangent", 0, 2, 1, 1))
sketch4.addConstraint(Sketcher.Constraint("Coincident", 1, 2, 2, 1))
sketch4.addConstraint(Sketcher.Constraint("Coincident", 2, 2, 3, 1))
sketch4.addConstraint(Sketcher.Constraint("Tangent", 3, 2, 4, 1))
sketch4.addConstraint(Sketcher.Constraint("Tangent", 4, 2, 5, 1))
sketch4.addConstraint(Sketcher.Constraint("Coincident", 5, 2, 6, 1))
sketch4.addConstraint(Sketcher.Constraint("Coincident", 6, 2, 7, 1))
sketch4.addConstraint(Sketcher.Constraint("Tangent", 7, 2, 0, 1))
sketch4.addConstraint(Sketcher.Constraint("Horizontal", 0))
sketch4.addConstraint(Sketcher.Constraint("Vertical", 2))
sketch4.addConstraint(Sketcher.Constraint("Horizontal", 4))
sketch4.addConstraint(Sketcher.Constraint("Vertical", 6))
sketch4.addConstraint(Sketcher.Constraint("Equal", 1, 3))
sketch4.addConstraint(Sketcher.Constraint("Equal", 3, 5))
sketch4.addConstraint(Sketcher.Constraint("Equal", 5, 7))
sketch4.addConstraint(Sketcher.Constraint("Vertical", 1, 3, 3, 3))
sketch4.addConstraint(Sketcher.Constraint("Vertical", 5, 3, 7, 3))
sketch4.addConstraint(Sketcher.Constraint("Vertical", 0, 2, 1, 2))
sketch4.addConstraint(Sketcher.Constraint("Vertical", 4, 2, 5, 2))
sketch4.addConstraint(Sketcher.Constraint("DistanceX", 0, 1, 0, 2, Q("18 mm")))
sketch4.addConstraint(Sketcher.Constraint("DistanceY", 2, 1, 2, 2, Q("37.3 mm")))
sketch4.addConstraint(Sketcher.Constraint("DistanceX", -1, 1, 1, 3, Q("255 mm")))
sketch4.addConstraint(Sketcher.Constraint("DistanceY", 0, 2, -1, 1, Q("152 mm")))
sketch4.addConstraint(Sketcher.Constraint("DistanceY", 3, 2, -1, 1, Q("102 mm")))
pocket3 = body.newObject("PartDesign::Pocket", "Pocket002")
pocket3.Profile = sketch4
pocket3.Length = 723
pocket3.Reversed = True

sketch5 = body.newObject("Sketcher::SketchObject", "Sketch004")
sketch5.AttachmentSupport = (doc.getObject("XY_Plane"), [""])
sketch5.MapMode = "FlatFace"
sketch5.addGeometry(Part.LineSegment(Vector(-237, 152, 0), Vector(-255, 152, 0)), False)
sketch5.addGeometry(Part.ArcOfCircle(Part.Circle(Vector(-255, 148.825, 0), Vector(0, 0, 1), 3.175), math.radians(90), math.radians(270)), False)
sketch5.addGeometry(Part.LineSegment(Vector(-255, 145.65, 0), Vector(-255, 108.35, 0)), False)
sketch5.addGeometry(Part.ArcOfCircle(Part.Circle(Vector(-255, 105.175, 0), Vector(0, 0, 1), 3.175), math.radians(90), math.radians(270)), False)
sketch5.addGeometry(Part.LineSegment(Vector(-255, 102, 0), Vector(-237, 102, 0)), False)
sketch5.addGeometry(Part.ArcOfCircle(Part.Circle(Vector(-237, 105.175, 0), Vector(0, 0, 1), 3.175), math.radians(-90), math.radians(90)), False)
sketch5.addGeometry(Part.LineSegment(Vector(-237, 108.35, 0), Vector(-237, 145.65, 0)), False)
sketch5.addGeometry(Part.ArcOfCircle(Part.Circle(Vector(-237, 148.825, 0), Vector(0, 0, 1), 3.175), math.radians(-90), math.radians(90)), False)
sketch5.addConstraint(Sketcher.Constraint("Tangent", 0, 2, 1, 1))
sketch5.addConstraint(Sketcher.Constraint("Coincident", 1, 2, 2, 1))
sketch5.addConstraint(Sketcher.Constraint("Coincident", 2, 2, 3, 1))
sketch5.addConstraint(Sketcher.Constraint("Tangent", 3, 2, 4, 1))
sketch5.addConstraint(Sketcher.Constraint("Tangent", 4, 2, 5, 1))
sketch5.addConstraint(Sketcher.Constraint("Coincident", 5, 2, 6, 1))
sketch5.addConstraint(Sketcher.Constraint("Coincident", 6, 2, 7, 1))
sketch5.addConstraint(Sketcher.Constraint("Tangent", 7, 2, 0, 1))
sketch5.addConstraint(Sketcher.Constraint("Horizontal", 0))
sketch5.addConstraint(Sketcher.Constraint("Vertical", 2))
sketch5.addConstraint(Sketcher.Constraint("Horizontal", 4))
sketch5.addConstraint(Sketcher.Constraint("Vertical", 6))
sketch5.addConstraint(Sketcher.Constraint("Equal", 1, 3))
sketch5.addConstraint(Sketcher.Constraint("Equal", 3, 5))
sketch5.addConstraint(Sketcher.Constraint("Equal", 5, 7))
sketch5.addConstraint(Sketcher.Constraint("Vertical", 1, 3, 3, 3))
sketch5.addConstraint(Sketcher.Constraint("Vertical", 5, 3, 7, 3))
sketch5.addConstraint(Sketcher.Constraint("Vertical", 0, 2, 1, 2))
sketch5.addConstraint(Sketcher.Constraint("Vertical", 4, 2, 5, 2))
sketch5.addConstraint(Sketcher.Constraint("DistanceX", 0, 2, 0, 1, Q("18 mm")))
sketch5.addConstraint(Sketcher.Constraint("DistanceY", 2, 2, 2, 1, Q("37.3 mm")))
sketch5.addConstraint(Sketcher.Constraint("DistanceX", 1, 3, -1, 1, Q("255 mm")))
sketch5.addConstraint(Sketcher.Constraint("DistanceY", -1, 1, 0, 2, Q("152 mm")))
sketch5.addConstraint(Sketcher.Constraint("DistanceY", -1, 1, 3, 2, Q("102 mm")))
pocket4 = body.newObject("PartDesign::Pocket", "Pocket003")
pocket4.Profile = sketch5
pocket4.Length = 160
pocket4.Reversed = True

sketch6 = body.newObject("Sketcher::SketchObject", "Sketch005")
sketch6.AttachmentSupport = (doc.getObject("XY_Plane"), [""])
sketch6.MapMode = "FlatFace"
sketch6.addGeometry(Part.LineSegment(Vector(-237, 25, 0), Vector(-255, 25, 0)), False)
sketch6.addGeometry(Part.ArcOfCircle(Part.Circle(Vector(-255, 21.825, 0), Vector(0, 0, 1), 3.175), math.radians(90), math.radians(270)), False)
sketch6.addGeometry(Part.LineSegment(Vector(-255, 18.65, 0), Vector(-255, -18.65, 0)), False)
sketch6.addGeometry(Part.ArcOfCircle(Part.Circle(Vector(-255, -21.825, 0), Vector(0, 0, 1), 3.175), math.radians(90), math.radians(270)), False)
sketch6.addGeometry(Part.LineSegment(Vector(-255, -25, 0), Vector(-237, -25, 0)), False)
sketch6.addGeometry(Part.ArcOfCircle(Part.Circle(Vector(-237, -21.825, 0), Vector(0, 0, 1), 3.175), math.radians(-90), math.radians(90)), False)
sketch6.addGeometry(Part.LineSegment(Vector(-237, -18.65, 0), Vector(-237, 18.65, 0)), False)
sketch6.addGeometry(Part.ArcOfCircle(Part.Circle(Vector(-237, 21.825, 0), Vector(0, 0, 1), 3.175), math.radians(-90), math.radians(90)), False)
sketch6.addConstraint(Sketcher.Constraint("Tangent", 0, 2, 1, 1))
sketch6.addConstraint(Sketcher.Constraint("Coincident", 1, 2, 2, 1))
sketch6.addConstraint(Sketcher.Constraint("Coincident", 2, 2, 3, 1))
sketch6.addConstraint(Sketcher.Constraint("Tangent", 3, 2, 4, 1))
sketch6.addConstraint(Sketcher.Constraint("Tangent", 4, 2, 5, 1))
sketch6.addConstraint(Sketcher.Constraint("Coincident", 5, 2, 6, 1))
sketch6.addConstraint(Sketcher.Constraint("Coincident", 6, 2, 7, 1))
sketch6.addConstraint(Sketcher.Constraint("Tangent", 7, 2, 0, 1))
sketch6.addConstraint(Sketcher.Constraint("Horizontal", 0))
sketch6.addConstraint(Sketcher.Constraint("Vertical", 2))
sketch6.addConstraint(Sketcher.Constraint("Horizontal", 4))
sketch6.addConstraint(Sketcher.Constraint("Vertical", 6))
sketch6.addConstraint(Sketcher.Constraint("Equal", 1, 3))
sketch6.addConstraint(Sketcher.Constraint("Equal", 3, 5))
sketch6.addConstraint(Sketcher.Constraint("Equal", 5, 7))
sketch6.addConstraint(Sketcher.Constraint("Symmetric", 1, 3, 3, 3, -1))
sketch6.addConstraint(Sketcher.Constraint("Vertical", 5, 3, 7, 3))
sketch6.addConstraint(Sketcher.Constraint("Vertical", 0, 2, 1, 2))
sketch6.addConstraint(Sketcher.Constraint("Vertical", 4, 2, 5, 2))
sketch6.addConstraint(Sketcher.Constraint("DistanceX", 0, 2, 0, 1, Q("18 mm")))
sketch6.addConstraint(Sketcher.Constraint("DistanceY", 2, 2, 2, 1, Q("37.3 mm")))
sketch6.addConstraint(Sketcher.Constraint("DistanceX", 1, 3, -1, 1, Q("255 mm")))
sketch6.addConstraint(Sketcher.Constraint("DistanceY", -1, 1, 0, 2, Q("25 mm")))
pocket5 = body.newObject("PartDesign::Pocket", "Pocket004")
pocket5.Profile = sketch6
pocket5.Length = 190
pocket5.Reversed = True

sketch7 = body.newObject("Sketcher::SketchObject", "Sketch006")
sketch7.AttachmentSupport = (doc.getObject("XY_Plane"), [""])
sketch7.MapMode = "FlatFace"
sketch7.addGeometry(Part.LineSegment(Vector(-237, -145.65, 0), Vector(-237, -108.35, 0)), False)
sketch7.addGeometry(Part.ArcOfCircle(Part.Circle(Vector(-237, -105.175, 0), Vector(0, 0, 1), 3.175), math.radians(-90), math.radians(90)), False)
sketch7.addGeometry(Part.LineSegment(Vector(-237, -102, 0), Vector(-255, -102, 0)), False)
sketch7.addGeometry(Part.ArcOfCircle(Part.Circle(Vector(-255, -105.175, 0), Vector(0, 0, 1), 3.175), math.radians(90), math.radians(270)), False)
sketch7.addGeometry(Part.LineSegment(Vector(-255, -108.35, 0), Vector(-255, -145.65, 0)), False)
sketch7.addGeometry(Part.ArcOfCircle(Part.Circle(Vector(-255, -148.825, 0), Vector(0, 0, 1), 3.175), math.radians(90), math.radians(270)), False)
sketch7.addGeometry(Part.LineSegment(Vector(-255, -152, 0), Vector(-237, -152, 0)), False)
sketch7.addGeometry(Part.ArcOfCircle(Part.Circle(Vector(-237, -148.825, 0), Vector(0, 0, 1), 3.175), math.radians(-90), math.radians(90)), False)
sketch7.addConstraint(Sketcher.Constraint("Coincident", 0, 2, 1, 1))
sketch7.addConstraint(Sketcher.Constraint("Tangent", 1, 2, 2, 1))
sketch7.addConstraint(Sketcher.Constraint("Tangent", 2, 2, 3, 1))
sketch7.addConstraint(Sketcher.Constraint("Coincident", 3, 2, 4, 1))
sketch7.addConstraint(Sketcher.Constraint("Coincident", 4, 2, 5, 1))
sketch7.addConstraint(Sketcher.Constraint("Tangent", 5, 2, 6, 1))
sketch7.addConstraint(Sketcher.Constraint("Tangent", 6, 2, 7, 1))
sketch7.addConstraint(Sketcher.Constraint("Coincident", 7, 2, 0, 1))
sketch7.addConstraint(Sketcher.Constraint("Vertical", 0))
sketch7.addConstraint(Sketcher.Constraint("Horizontal", 2))
sketch7.addConstraint(Sketcher.Constraint("Vertical", 4))
sketch7.addConstraint(Sketcher.Constraint("Horizontal", 6))
sketch7.addConstraint(Sketcher.Constraint("Equal", 1, 3))
sketch7.addConstraint(Sketcher.Constraint("Equal", 3, 5))
sketch7.addConstraint(Sketcher.Constraint("Equal", 5, 7))
sketch7.addConstraint(Sketcher.Constraint("Vertical", 3, 3, 5, 3))
sketch7.addConstraint(Sketcher.Constraint("Vertical", 1, 3, 7, 3))
sketch7.addConstraint(Sketcher.Constraint("Vertical", 7, 3, 0, 2))
sketch7.addConstraint(Sketcher.Constraint("Vertical", 2, 2, 3, 2))
sketch7.addConstraint(Sketcher.Constraint("DistanceX", 2, 2, 2, 1, Q("18 mm")))
sketch7.addConstraint(Sketcher.Constraint("DistanceY", 0, 1, 0, 2, Q("37.3 mm")))
sketch7.addConstraint(Sketcher.Constraint("DistanceX", 1, 3, -1, 1, Q("237 mm")))
sketch7.addConstraint(Sketcher.Constraint("DistanceY", 1, 2, -1, 1, Q("102 mm")))
sketch7.addConstraint(Sketcher.Constraint("DistanceY", 5, 2, -1, 1, Q("152 mm")))
pocket6 = body.newObject("PartDesign::Pocket", "Pocket005")
pocket6.Profile = sketch7
pocket6.Length = 231
pocket6.Reversed = True

doc.recompute()
